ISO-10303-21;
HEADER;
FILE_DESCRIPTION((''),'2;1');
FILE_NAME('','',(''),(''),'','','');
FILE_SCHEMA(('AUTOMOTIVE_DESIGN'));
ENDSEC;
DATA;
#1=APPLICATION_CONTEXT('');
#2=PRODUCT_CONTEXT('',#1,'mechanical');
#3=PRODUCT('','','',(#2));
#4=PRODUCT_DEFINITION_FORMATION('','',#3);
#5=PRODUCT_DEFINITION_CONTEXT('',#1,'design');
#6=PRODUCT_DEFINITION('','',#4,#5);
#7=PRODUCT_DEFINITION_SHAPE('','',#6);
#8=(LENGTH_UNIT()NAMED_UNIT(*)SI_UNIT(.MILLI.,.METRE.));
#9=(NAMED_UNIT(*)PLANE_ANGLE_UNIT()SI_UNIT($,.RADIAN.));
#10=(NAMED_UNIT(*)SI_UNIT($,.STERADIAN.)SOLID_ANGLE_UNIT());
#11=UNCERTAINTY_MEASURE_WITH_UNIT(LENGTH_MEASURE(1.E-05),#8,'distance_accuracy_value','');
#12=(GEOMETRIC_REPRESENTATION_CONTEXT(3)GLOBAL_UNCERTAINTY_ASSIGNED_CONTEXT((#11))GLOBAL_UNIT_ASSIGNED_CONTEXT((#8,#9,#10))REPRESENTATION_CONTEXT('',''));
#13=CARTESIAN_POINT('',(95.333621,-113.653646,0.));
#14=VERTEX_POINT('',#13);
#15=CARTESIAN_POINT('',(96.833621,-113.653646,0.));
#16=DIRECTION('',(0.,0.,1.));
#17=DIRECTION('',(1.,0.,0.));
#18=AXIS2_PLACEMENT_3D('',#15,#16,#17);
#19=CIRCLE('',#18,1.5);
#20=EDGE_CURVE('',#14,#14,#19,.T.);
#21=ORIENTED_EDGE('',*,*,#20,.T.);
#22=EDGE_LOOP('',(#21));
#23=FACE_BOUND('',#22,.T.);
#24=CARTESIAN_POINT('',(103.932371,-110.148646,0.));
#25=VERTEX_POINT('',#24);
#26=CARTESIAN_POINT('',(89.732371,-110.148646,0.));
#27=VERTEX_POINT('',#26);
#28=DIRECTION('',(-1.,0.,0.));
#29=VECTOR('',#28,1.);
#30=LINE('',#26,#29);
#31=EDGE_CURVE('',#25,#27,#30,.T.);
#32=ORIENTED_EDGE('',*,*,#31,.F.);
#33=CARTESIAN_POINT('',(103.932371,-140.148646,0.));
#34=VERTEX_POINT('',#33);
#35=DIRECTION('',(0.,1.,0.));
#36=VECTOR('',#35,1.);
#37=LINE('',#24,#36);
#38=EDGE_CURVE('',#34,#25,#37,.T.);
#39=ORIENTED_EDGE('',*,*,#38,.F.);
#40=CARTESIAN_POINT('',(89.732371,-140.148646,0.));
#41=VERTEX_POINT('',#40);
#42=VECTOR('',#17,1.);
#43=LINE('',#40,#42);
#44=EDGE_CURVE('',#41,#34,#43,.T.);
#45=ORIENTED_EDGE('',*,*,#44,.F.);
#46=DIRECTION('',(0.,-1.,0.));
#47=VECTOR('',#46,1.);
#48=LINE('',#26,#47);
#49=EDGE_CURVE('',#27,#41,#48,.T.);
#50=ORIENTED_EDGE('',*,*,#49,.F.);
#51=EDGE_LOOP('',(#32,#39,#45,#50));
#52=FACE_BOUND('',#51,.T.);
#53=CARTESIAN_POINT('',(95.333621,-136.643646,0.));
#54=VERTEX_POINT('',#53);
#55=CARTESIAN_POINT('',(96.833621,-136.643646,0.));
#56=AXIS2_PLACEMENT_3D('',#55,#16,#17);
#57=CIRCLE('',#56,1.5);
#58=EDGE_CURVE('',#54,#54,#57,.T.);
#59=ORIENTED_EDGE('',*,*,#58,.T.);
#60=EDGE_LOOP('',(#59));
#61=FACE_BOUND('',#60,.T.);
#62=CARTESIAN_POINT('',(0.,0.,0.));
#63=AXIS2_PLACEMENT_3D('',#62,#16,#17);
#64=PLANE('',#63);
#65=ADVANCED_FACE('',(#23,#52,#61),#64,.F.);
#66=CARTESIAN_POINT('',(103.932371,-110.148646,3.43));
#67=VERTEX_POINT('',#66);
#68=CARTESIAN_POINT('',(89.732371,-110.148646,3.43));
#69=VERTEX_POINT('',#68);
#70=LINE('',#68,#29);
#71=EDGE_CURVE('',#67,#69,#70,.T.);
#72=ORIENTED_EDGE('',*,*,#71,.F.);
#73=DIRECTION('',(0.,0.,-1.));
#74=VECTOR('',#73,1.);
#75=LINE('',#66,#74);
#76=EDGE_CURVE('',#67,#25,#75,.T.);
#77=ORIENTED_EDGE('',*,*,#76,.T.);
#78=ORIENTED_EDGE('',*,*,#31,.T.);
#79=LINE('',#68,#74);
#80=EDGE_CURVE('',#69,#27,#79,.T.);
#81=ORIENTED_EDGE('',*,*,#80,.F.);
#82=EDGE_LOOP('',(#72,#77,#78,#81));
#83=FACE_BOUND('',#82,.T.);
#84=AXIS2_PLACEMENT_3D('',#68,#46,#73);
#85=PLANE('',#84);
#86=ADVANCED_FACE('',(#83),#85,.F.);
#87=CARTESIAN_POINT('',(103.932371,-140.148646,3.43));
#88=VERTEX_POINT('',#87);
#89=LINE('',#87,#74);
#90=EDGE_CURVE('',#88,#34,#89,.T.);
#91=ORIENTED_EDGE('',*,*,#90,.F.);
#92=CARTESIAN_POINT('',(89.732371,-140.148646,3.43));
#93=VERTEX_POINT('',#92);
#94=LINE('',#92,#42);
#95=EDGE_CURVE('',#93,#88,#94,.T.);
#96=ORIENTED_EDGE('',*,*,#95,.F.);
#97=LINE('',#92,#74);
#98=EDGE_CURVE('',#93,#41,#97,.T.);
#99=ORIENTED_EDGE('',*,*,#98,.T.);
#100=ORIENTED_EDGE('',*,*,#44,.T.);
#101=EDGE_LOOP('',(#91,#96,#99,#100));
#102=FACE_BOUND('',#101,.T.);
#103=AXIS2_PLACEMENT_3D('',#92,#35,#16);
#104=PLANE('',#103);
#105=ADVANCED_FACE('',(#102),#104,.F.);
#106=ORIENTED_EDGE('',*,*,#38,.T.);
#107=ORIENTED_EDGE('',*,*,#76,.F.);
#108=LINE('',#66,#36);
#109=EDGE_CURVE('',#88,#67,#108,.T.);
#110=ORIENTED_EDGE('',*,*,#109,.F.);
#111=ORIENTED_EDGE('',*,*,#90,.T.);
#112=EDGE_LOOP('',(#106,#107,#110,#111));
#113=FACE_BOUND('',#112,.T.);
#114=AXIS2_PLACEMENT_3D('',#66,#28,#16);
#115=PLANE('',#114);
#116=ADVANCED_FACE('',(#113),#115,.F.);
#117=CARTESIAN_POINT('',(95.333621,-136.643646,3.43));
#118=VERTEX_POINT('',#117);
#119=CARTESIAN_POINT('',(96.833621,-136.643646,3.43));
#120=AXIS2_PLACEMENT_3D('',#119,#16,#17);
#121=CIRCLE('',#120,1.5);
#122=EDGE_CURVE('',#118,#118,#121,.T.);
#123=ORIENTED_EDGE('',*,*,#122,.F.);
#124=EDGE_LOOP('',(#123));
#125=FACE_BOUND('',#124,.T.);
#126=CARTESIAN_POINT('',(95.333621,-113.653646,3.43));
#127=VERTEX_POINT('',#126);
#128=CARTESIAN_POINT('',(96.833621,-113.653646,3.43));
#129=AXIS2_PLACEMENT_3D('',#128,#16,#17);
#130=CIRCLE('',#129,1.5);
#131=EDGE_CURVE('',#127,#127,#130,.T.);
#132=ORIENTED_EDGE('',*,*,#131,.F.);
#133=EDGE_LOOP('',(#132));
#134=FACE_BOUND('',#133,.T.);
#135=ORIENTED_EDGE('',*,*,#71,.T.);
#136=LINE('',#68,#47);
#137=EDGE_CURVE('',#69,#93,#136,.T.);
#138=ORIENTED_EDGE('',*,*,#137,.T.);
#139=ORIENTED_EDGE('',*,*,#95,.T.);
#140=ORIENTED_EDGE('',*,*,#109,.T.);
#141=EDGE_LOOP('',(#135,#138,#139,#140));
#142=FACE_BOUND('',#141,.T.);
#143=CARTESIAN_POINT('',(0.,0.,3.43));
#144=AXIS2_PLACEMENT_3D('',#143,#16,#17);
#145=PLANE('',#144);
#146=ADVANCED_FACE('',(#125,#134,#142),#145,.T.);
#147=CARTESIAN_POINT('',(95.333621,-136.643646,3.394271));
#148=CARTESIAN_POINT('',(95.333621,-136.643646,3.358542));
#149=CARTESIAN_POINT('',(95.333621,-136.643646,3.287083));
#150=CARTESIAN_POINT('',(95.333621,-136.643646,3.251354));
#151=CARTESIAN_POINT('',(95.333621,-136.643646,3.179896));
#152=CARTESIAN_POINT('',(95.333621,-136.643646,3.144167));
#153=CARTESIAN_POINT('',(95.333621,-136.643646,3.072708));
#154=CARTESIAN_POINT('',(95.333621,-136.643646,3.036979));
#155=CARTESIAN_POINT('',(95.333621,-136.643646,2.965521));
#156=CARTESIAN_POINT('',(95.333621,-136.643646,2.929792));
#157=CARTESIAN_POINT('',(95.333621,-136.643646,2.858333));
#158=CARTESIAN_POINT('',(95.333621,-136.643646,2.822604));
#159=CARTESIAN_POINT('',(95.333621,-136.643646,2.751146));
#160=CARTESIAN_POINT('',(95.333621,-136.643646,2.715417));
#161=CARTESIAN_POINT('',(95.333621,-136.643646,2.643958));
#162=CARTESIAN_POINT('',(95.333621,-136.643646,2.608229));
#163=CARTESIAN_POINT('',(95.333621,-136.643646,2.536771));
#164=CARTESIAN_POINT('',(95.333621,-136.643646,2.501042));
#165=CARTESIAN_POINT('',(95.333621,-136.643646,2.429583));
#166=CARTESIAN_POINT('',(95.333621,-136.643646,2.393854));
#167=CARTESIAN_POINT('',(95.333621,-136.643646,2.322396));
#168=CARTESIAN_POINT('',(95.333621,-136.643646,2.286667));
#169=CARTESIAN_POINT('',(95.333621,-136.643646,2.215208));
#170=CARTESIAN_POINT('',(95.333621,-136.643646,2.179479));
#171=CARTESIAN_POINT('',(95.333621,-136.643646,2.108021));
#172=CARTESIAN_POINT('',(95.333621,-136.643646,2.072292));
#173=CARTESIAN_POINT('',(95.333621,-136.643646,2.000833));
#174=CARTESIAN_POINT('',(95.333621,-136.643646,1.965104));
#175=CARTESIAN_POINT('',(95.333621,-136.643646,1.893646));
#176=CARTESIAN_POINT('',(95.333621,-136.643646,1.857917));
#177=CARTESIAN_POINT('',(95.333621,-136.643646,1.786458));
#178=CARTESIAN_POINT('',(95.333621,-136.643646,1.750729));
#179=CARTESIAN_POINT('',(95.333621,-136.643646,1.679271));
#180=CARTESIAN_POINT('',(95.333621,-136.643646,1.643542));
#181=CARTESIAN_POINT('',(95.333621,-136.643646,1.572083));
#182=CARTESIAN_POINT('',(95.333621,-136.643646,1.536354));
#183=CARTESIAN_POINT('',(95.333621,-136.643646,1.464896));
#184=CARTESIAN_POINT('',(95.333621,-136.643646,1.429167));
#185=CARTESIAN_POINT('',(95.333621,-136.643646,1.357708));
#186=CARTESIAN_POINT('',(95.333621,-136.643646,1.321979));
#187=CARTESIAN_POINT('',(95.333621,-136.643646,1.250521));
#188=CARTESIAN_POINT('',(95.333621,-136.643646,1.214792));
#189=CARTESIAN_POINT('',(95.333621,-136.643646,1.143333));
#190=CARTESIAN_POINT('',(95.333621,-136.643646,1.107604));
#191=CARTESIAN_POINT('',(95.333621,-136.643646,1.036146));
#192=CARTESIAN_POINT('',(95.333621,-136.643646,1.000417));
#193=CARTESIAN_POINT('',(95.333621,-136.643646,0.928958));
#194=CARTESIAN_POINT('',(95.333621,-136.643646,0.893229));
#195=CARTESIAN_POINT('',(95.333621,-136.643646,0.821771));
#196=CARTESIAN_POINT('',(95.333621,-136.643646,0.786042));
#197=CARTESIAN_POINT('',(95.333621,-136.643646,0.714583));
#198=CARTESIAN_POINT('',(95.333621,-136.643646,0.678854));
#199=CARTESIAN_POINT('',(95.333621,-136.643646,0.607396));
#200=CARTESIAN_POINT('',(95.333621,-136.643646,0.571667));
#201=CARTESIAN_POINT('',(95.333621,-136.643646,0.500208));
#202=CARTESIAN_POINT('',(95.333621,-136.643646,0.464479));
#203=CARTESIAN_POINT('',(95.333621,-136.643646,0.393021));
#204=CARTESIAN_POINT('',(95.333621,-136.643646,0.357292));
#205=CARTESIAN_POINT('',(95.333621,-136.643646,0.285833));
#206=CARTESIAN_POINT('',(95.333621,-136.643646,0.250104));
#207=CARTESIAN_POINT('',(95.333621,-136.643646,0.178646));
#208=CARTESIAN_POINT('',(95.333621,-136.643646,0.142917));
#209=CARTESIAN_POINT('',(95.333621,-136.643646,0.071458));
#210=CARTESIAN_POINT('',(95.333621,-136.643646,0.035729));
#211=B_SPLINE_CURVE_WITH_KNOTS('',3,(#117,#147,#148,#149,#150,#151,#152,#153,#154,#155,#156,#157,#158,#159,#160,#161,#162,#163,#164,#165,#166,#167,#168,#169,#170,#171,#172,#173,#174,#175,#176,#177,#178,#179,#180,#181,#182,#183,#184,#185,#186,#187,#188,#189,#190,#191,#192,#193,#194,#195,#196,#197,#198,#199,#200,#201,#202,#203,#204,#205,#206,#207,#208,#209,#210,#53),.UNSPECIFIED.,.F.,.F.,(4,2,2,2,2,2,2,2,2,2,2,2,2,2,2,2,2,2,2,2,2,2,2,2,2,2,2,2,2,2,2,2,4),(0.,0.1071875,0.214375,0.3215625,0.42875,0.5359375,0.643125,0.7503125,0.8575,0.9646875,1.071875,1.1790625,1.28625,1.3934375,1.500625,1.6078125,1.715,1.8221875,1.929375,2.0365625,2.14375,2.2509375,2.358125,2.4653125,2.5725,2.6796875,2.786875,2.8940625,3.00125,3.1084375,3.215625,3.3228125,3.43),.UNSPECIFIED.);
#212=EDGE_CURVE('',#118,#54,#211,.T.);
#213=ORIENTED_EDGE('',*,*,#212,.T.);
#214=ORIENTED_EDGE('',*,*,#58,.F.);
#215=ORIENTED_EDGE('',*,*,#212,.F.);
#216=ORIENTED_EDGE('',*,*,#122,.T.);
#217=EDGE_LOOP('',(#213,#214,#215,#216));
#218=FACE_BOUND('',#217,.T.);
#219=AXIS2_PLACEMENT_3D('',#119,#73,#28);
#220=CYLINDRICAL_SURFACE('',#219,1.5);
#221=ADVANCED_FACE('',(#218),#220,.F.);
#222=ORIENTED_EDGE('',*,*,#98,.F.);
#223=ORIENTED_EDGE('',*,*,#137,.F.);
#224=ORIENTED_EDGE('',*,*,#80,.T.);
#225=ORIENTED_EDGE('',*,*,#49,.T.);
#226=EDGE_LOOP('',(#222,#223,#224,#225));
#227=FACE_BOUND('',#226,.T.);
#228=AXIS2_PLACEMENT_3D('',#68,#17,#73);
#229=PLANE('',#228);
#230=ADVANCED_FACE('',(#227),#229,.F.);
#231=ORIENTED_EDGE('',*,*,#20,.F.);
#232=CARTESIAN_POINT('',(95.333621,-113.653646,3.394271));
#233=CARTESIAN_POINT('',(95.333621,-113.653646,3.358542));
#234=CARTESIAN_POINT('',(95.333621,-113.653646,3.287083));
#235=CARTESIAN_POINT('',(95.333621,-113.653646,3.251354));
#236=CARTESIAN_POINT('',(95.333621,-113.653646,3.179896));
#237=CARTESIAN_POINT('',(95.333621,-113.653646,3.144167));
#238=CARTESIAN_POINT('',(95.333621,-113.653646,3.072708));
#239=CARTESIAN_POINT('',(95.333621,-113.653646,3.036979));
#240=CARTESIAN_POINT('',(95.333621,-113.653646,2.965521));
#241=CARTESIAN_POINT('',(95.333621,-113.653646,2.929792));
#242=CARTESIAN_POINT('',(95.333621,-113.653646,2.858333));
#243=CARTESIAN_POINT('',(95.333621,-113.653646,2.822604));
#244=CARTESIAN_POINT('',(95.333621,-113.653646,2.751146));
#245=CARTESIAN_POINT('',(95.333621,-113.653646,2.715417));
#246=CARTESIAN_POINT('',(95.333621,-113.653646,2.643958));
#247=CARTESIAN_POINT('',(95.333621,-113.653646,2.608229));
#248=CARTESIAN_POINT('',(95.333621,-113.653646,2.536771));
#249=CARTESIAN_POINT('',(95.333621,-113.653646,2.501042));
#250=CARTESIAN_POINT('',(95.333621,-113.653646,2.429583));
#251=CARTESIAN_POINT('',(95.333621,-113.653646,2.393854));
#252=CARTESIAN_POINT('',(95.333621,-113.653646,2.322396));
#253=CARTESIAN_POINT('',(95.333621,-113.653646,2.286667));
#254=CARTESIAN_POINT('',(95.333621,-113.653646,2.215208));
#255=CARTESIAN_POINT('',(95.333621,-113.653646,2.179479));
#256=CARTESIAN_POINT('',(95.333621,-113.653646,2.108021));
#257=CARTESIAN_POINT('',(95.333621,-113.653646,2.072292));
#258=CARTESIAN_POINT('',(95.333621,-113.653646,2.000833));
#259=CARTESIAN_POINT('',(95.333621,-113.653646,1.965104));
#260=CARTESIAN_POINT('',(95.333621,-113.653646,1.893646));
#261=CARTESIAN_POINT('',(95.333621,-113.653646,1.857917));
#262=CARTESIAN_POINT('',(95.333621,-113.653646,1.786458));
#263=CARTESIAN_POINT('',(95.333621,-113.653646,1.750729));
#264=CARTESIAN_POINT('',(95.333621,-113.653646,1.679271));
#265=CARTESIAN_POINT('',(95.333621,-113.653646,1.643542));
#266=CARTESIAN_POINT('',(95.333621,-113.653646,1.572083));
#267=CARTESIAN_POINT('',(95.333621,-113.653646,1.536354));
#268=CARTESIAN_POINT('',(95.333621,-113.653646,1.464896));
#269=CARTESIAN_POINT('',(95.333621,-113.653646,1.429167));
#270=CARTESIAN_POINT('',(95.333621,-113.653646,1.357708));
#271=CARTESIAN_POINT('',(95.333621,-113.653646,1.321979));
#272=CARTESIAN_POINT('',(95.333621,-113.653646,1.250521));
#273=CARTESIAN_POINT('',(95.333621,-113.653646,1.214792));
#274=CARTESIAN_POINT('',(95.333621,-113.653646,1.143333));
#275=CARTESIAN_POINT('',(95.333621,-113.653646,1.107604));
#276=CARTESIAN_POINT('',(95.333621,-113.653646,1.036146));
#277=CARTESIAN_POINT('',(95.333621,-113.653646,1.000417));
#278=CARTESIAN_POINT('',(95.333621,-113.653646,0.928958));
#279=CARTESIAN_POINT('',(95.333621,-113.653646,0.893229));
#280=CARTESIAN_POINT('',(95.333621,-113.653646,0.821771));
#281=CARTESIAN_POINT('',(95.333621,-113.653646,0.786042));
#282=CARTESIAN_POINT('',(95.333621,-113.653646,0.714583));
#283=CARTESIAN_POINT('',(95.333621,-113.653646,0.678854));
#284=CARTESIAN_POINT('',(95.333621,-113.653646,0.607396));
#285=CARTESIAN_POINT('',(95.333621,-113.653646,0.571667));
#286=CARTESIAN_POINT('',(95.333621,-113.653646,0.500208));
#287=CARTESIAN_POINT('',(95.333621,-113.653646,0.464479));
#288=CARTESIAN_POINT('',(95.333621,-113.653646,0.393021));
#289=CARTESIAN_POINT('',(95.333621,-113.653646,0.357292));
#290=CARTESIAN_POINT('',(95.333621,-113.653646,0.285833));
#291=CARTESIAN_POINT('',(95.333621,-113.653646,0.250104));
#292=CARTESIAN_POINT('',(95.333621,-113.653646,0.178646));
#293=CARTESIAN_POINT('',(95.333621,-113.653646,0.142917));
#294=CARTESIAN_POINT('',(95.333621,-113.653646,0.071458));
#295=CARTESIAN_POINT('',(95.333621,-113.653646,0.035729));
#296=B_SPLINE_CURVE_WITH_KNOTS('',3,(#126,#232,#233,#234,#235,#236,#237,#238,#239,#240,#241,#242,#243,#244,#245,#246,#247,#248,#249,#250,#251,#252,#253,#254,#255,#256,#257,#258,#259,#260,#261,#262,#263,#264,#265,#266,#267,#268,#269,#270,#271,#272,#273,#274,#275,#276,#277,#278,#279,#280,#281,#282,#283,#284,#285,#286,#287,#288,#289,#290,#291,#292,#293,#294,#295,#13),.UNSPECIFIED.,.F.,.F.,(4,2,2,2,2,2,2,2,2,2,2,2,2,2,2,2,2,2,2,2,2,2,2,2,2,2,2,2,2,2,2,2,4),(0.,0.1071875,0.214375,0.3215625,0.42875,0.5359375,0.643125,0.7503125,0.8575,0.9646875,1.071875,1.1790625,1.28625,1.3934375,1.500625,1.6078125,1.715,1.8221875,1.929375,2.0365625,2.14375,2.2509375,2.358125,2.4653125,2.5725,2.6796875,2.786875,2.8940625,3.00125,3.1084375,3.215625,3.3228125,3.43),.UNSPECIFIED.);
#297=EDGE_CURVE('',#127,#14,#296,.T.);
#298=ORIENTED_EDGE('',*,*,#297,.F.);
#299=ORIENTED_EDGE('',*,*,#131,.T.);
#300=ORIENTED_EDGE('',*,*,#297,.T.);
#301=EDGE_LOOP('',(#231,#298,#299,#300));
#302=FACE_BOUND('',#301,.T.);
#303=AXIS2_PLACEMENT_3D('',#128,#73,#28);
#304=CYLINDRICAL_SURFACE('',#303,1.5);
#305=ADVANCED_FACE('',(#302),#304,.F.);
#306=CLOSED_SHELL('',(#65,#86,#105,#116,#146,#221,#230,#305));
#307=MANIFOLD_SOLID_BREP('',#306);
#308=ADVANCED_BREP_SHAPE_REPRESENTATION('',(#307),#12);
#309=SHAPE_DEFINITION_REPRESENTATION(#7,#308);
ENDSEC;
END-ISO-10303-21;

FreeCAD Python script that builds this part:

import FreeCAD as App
import Part
import Sketcher

doc = App.newDocument("Part")
body = doc.addObject("PartDesign::Body", "Body")

# Sketch on XY plane
sketch1 = body.newObject("Sketcher::SketchObject", "Sketch")
sketch1.AttachmentSupport = (doc.getObject("XY_Plane"), [""])
sketch1.MapMode = "FlatFace"
sketch1.addGeometry(Part.LineSegment(App.Vector(89.7, -110.1, 0), App.Vector(89.7, -140.1, 0)), False)
sketch1.addGeometry(Part.LineSegment(App.Vector(89.7, -140.1, 0), App.Vector(103.9, -140.1, 0)), False)
sketch1.addGeometry(Part.LineSegment(App.Vector(103.9, -140.1, 0), App.Vector(103.9, -110.1, 0)), False)
sketch1.addGeometry(Part.LineSegment(App.Vector(103.9, -110.1, 0), App.Vector(89.7, -110.1, 0)), False)
sketch1.addGeometry(Part.Circle(App.Vector(96.8, -136.6, 0), App.Vector(0, 0, 1), 1.5), False)
sketch1.addGeometry(Part.Circle(App.Vector(96.8, -113.7, 0), App.Vector(0, 0, 1), 1.5), False)
sketch1.addConstraint(Sketcher.Constraint("Coincident", 0, 2, 1, 1))
sketch1.addConstraint(Sketcher.Constraint("Coincident", 1, 2, 2, 1))
sketch1.addConstraint(Sketcher.Constraint("Coincident", 2, 2, 3, 1))
sketch1.addConstraint(Sketcher.Constraint("Coincident", 3, 2, 0, 1))
sketch1.addConstraint(Sketcher.Constraint("Vertical", 0))
sketch1.addConstraint(Sketcher.Constraint("Horizontal", 1))
sketch1.addConstraint(Sketcher.Constraint("Vertical", 2))
sketch1.addConstraint(Sketcher.Constraint("Horizontal", 3))
sketch1.addConstraint(Sketcher.Constraint("Equal", 4, 5))
sketch1.addConstraint(Sketcher.Constraint("Vertical", 4, 3, 5, 3))
sketch1.addConstraint(Sketcher.Constraint("Diameter", 4, 3.0))
sketch1.addConstraint(Sketcher.Constraint("DistanceY", 0, 2, 0, 1, 30.0))
sketch1.addConstraint(Sketcher.Constraint("DistanceX", 1, 1, 1, 2, 14.2))
sketch1.addConstraint(Sketcher.Constraint("DistanceY", 4, 3, 5, 3, 22.99))
sketch1.addConstraint(Sketcher.Constraint("DistanceY", 0, 2, 4, 3, 3.505))
sketch1.addConstraint(Sketcher.Constraint("DistanceX", -1, 1, 4, 3, 96.833621))
sketch1.addConstraint(Sketcher.Constraint("DistanceX", -1, 1, 0, 2, 89.732371))
sketch1.addConstraint(Sketcher.Constraint("DistanceY", 4, 3, -1, 1, 136.643646))
pad1 = body.newObject("PartDesign::Pad", "Pad")
pad1.Profile = sketch1
pad1.Length = 3.43

doc.recompute()
